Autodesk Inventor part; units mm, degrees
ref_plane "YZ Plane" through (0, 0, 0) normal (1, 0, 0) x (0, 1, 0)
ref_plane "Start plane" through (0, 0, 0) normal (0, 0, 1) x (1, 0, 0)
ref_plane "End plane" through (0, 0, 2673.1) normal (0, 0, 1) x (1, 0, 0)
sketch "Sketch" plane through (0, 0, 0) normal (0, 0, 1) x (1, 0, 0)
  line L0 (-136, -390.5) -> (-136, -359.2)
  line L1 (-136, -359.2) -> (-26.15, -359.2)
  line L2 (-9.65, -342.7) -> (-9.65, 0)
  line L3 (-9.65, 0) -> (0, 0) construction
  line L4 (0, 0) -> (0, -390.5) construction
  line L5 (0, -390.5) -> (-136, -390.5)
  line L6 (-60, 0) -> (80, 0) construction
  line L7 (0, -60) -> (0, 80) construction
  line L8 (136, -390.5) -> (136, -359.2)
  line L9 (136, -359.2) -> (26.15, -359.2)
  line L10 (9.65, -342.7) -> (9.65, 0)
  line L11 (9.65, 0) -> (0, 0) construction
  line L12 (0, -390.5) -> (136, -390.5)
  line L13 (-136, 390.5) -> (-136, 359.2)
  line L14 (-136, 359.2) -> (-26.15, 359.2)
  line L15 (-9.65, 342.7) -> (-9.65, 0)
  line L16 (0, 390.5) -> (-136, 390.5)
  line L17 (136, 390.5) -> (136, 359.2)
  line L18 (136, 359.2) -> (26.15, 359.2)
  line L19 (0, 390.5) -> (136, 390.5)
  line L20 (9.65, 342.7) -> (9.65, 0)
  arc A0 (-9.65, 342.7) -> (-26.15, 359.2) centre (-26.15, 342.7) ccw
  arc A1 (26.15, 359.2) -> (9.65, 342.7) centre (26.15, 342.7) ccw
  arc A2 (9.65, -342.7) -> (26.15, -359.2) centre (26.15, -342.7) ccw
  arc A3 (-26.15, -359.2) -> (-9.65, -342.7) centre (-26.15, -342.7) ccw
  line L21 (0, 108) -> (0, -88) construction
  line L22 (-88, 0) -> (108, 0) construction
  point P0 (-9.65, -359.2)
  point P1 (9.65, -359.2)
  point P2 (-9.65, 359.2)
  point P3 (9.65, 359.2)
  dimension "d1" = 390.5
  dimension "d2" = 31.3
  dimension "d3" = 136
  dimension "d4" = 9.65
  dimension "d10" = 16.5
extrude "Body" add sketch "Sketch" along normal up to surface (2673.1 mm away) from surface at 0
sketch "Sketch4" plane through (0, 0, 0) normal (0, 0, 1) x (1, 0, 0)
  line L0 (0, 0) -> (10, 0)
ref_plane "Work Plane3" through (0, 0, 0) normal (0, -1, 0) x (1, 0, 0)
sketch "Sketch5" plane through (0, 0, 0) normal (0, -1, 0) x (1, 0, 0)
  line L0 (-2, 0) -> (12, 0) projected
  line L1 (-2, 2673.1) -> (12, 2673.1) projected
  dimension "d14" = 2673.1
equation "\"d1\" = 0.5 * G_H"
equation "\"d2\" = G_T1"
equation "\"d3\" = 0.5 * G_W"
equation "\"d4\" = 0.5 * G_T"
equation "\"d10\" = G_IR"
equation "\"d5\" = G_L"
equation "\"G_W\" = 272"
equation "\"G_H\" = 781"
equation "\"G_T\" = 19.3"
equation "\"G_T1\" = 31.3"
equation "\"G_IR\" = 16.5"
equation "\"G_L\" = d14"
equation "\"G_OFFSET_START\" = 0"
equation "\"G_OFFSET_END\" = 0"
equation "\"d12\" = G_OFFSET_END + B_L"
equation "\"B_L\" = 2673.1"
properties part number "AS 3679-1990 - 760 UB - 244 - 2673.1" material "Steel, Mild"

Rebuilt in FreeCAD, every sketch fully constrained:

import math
import FreeCAD as App
import Part
import Sketcher
Q = App.Units.Quantity

doc = App.newDocument("Part")
params = doc.addObject("Spreadsheet::Sheet", "Params")
for row, (alias, value) in enumerate([
    ("sketch1_radius", "16.5 mm"),
    ("sketch1_height", "31.3 mm"),
    ("pad1_length", "2673.1 mm"),
], start=1):
    params.set(f"A{row}", alias)
    params.set(f"B{row}", "=" + value)
    params.setAlias(f"B{row}", alias)

body = doc.addObject("PartDesign::Body", "Body")

# Sketch on XY plane
sketch1 = doc.addObject("Sketcher::SketchObject", "Sketch")
body.addObject(sketch1)
sketch1.AttachmentSupport = (doc.XY_Plane, [""])
sketch1.MapMode = "FlatFace"
sketch1.addGeometry(Part.LineSegment(App.Vector(-136, -359.2, 0), App.Vector(-136, -390.5, 0)), False)
sketch1.addGeometry(Part.LineSegment(App.Vector(-136, -390.5, 0), App.Vector(136, -390.5, 0)), False)
sketch1.addGeometry(Part.LineSegment(App.Vector(136, -390.5, 0), App.Vector(136, -359.2, 0)), False)
sketch1.addGeometry(Part.LineSegment(App.Vector(136, -359.2, 0), App.Vector(26.15, -359.2, 0)), False)
sketch1.addGeometry(Part.ArcOfCircle(Part.Circle(App.Vector(26.15, -342.7, 0), App.Vector(0, 0, 1), 16.5), math.radians(180), math.radians(270)), False)
sketch1.addGeometry(Part.LineSegment(App.Vector(9.65, -342.7, 0), App.Vector(9.65, 342.7, 0)), False)
sketch1.addGeometry(Part.ArcOfCircle(Part.Circle(App.Vector(26.15, 342.7, 0), App.Vector(0, 0, 1), 16.5), math.radians(90), math.radians(180)), False)
sketch1.addGeometry(Part.LineSegment(App.Vector(26.15, 359.2, 0), App.Vector(136, 359.2, 0)), False)
sketch1.addGeometry(Part.LineSegment(App.Vector(136, 359.2, 0), App.Vector(136, 390.5, 0)), False)
sketch1.addGeometry(Part.LineSegment(App.Vector(136, 390.5, 0), App.Vector(-136, 390.5, 0)), False)
sketch1.addGeometry(Part.LineSegment(App.Vector(-136, 390.5, 0), App.Vector(-136, 359.2, 0)), False)
sketch1.addGeometry(Part.LineSegment(App.Vector(-136, 359.2, 0), App.Vector(-26.15, 359.2, 0)), False)
sketch1.addGeometry(Part.ArcOfCircle(Part.Circle(App.Vector(-26.15, 342.7, 0), App.Vector(0, 0, 1), 16.5), math.radians(0), math.radians(90)), False)
sketch1.addGeometry(Part.LineSegment(App.Vector(-9.65, 342.7, 0), App.Vector(-9.65, -342.7, 0)), False)
sketch1.addGeometry(Part.ArcOfCircle(Part.Circle(App.Vector(-26.15, -342.7, 0), App.Vector(0, 0, 1), 16.5), math.radians(-90), math.radians(0)), False)
sketch1.addGeometry(Part.LineSegment(App.Vector(-26.15, -359.2, 0), App.Vector(-136, -359.2, 0)), False)
sketch1.addConstraint(Sketcher.Constraint("Coincident", 0, 2, 1, 1))
sketch1.addConstraint(Sketcher.Constraint("Coincident", 1, 2, 2, 1))
sketch1.addConstraint(Sketcher.Constraint("Coincident", 2, 2, 3, 1))
sketch1.addConstraint(Sketcher.Constraint("Tangent", 3, 2, 4, 2))
sketch1.addConstraint(Sketcher.Constraint("Tangent", 4, 1, 5, 1))
sketch1.addConstraint(Sketcher.Constraint("Tangent", 5, 2, 6, 2))
sketch1.addConstraint(Sketcher.Constraint("Tangent", 6, 1, 7, 1))
sketch1.addConstraint(Sketcher.Constraint("Coincident", 7, 2, 8, 1))
sketch1.addConstraint(Sketcher.Constraint("Coincident", 8, 2, 9, 1))
sketch1.addConstraint(Sketcher.Constraint("Coincident", 9, 2, 10, 1))
sketch1.addConstraint(Sketcher.Constraint("Coincident", 10, 2, 11, 1))
sketch1.addConstraint(Sketcher.Constraint("Tangent", 11, 2, 12, 2))
sketch1.addConstraint(Sketcher.Constraint("Tangent", 12, 1, 13, 1))
sketch1.addConstraint(Sketcher.Constraint("Tangent", 13, 2, 14, 2))
sketch1.addConstraint(Sketcher.Constraint("Tangent", 14, 1, 15, 1))
sketch1.addConstraint(Sketcher.Constraint("Coincident", 15, 2, 0, 1))
sketch1.addConstraint(Sketcher.Constraint("Vertical", 0))
sketch1.addConstraint(Sketcher.Constraint("Horizontal", 1))
sketch1.addConstraint(Sketcher.Constraint("Vertical", 2))
sketch1.addConstraint(Sketcher.Constraint("Horizontal", 3))
sketch1.addConstraint(Sketcher.Constraint("Vertical", 5))
sketch1.addConstraint(Sketcher.Constraint("Horizontal", 7))
sketch1.addConstraint(Sketcher.Constraint("Vertical", 8))
sketch1.addConstraint(Sketcher.Constraint("Horizontal", 9))
sketch1.addConstraint(Sketcher.Constraint("Vertical", 10))
sketch1.addConstraint(Sketcher.Constraint("Horizontal", 11))
sketch1.addConstraint(Sketcher.Constraint("Vertical", 13))
sketch1.addConstraint(Sketcher.Constraint("Horizontal", 15))
sketch1.addConstraint(Sketcher.Constraint("Equal", 4, 6))
sketch1.addConstraint(Sketcher.Constraint("Equal", 6, 12))
sketch1.addConstraint(Sketcher.Constraint("Equal", 12, 14))
sketch1.addConstraint(Sketcher.Constraint("Symmetric", 4, 3, 12, 3, -1, 1))
sketch1.addConstraint(Sketcher.Constraint("Symmetric", 0, 2, 8, 2, -1, 1))
sketch1.addConstraint(Sketcher.Constraint("Symmetric", 7, 2, 10, 2, -2))
sketch1.addConstraint(Sketcher.Constraint("Symmetric", 2, 2, 15, 2, -2))
sketch1.addConstraint(Sketcher.Constraint("Radius", 4, Q("16.5 mm")))
sketch1.addConstraint(Sketcher.Constraint("DistanceY", 0, 2, 0, 1, Q("31.3 mm")))
sketch1.addConstraint(Sketcher.Constraint("DistanceX", 0, 2, -1, 1, Q("136 mm")))
sketch1.addConstraint(Sketcher.Constraint("DistanceY", 0, 2, -1, 1, Q("390.5 mm")))
sketch1.addConstraint(Sketcher.Constraint("DistanceX", -1, 1, 4, 1, Q("9.65 mm")))
sketch1.setExpression("Constraints[35]", "Params.sketch1_radius")
sketch1.setExpression("Constraints[36]", "Params.sketch1_height")
pad1 = doc.addObject("PartDesign::Pad", "Pad")
body.addObject(pad1)
pad1.Profile = sketch1
pad1.setExpression("Length", "Params.pad1_length")

doc.recompute()
